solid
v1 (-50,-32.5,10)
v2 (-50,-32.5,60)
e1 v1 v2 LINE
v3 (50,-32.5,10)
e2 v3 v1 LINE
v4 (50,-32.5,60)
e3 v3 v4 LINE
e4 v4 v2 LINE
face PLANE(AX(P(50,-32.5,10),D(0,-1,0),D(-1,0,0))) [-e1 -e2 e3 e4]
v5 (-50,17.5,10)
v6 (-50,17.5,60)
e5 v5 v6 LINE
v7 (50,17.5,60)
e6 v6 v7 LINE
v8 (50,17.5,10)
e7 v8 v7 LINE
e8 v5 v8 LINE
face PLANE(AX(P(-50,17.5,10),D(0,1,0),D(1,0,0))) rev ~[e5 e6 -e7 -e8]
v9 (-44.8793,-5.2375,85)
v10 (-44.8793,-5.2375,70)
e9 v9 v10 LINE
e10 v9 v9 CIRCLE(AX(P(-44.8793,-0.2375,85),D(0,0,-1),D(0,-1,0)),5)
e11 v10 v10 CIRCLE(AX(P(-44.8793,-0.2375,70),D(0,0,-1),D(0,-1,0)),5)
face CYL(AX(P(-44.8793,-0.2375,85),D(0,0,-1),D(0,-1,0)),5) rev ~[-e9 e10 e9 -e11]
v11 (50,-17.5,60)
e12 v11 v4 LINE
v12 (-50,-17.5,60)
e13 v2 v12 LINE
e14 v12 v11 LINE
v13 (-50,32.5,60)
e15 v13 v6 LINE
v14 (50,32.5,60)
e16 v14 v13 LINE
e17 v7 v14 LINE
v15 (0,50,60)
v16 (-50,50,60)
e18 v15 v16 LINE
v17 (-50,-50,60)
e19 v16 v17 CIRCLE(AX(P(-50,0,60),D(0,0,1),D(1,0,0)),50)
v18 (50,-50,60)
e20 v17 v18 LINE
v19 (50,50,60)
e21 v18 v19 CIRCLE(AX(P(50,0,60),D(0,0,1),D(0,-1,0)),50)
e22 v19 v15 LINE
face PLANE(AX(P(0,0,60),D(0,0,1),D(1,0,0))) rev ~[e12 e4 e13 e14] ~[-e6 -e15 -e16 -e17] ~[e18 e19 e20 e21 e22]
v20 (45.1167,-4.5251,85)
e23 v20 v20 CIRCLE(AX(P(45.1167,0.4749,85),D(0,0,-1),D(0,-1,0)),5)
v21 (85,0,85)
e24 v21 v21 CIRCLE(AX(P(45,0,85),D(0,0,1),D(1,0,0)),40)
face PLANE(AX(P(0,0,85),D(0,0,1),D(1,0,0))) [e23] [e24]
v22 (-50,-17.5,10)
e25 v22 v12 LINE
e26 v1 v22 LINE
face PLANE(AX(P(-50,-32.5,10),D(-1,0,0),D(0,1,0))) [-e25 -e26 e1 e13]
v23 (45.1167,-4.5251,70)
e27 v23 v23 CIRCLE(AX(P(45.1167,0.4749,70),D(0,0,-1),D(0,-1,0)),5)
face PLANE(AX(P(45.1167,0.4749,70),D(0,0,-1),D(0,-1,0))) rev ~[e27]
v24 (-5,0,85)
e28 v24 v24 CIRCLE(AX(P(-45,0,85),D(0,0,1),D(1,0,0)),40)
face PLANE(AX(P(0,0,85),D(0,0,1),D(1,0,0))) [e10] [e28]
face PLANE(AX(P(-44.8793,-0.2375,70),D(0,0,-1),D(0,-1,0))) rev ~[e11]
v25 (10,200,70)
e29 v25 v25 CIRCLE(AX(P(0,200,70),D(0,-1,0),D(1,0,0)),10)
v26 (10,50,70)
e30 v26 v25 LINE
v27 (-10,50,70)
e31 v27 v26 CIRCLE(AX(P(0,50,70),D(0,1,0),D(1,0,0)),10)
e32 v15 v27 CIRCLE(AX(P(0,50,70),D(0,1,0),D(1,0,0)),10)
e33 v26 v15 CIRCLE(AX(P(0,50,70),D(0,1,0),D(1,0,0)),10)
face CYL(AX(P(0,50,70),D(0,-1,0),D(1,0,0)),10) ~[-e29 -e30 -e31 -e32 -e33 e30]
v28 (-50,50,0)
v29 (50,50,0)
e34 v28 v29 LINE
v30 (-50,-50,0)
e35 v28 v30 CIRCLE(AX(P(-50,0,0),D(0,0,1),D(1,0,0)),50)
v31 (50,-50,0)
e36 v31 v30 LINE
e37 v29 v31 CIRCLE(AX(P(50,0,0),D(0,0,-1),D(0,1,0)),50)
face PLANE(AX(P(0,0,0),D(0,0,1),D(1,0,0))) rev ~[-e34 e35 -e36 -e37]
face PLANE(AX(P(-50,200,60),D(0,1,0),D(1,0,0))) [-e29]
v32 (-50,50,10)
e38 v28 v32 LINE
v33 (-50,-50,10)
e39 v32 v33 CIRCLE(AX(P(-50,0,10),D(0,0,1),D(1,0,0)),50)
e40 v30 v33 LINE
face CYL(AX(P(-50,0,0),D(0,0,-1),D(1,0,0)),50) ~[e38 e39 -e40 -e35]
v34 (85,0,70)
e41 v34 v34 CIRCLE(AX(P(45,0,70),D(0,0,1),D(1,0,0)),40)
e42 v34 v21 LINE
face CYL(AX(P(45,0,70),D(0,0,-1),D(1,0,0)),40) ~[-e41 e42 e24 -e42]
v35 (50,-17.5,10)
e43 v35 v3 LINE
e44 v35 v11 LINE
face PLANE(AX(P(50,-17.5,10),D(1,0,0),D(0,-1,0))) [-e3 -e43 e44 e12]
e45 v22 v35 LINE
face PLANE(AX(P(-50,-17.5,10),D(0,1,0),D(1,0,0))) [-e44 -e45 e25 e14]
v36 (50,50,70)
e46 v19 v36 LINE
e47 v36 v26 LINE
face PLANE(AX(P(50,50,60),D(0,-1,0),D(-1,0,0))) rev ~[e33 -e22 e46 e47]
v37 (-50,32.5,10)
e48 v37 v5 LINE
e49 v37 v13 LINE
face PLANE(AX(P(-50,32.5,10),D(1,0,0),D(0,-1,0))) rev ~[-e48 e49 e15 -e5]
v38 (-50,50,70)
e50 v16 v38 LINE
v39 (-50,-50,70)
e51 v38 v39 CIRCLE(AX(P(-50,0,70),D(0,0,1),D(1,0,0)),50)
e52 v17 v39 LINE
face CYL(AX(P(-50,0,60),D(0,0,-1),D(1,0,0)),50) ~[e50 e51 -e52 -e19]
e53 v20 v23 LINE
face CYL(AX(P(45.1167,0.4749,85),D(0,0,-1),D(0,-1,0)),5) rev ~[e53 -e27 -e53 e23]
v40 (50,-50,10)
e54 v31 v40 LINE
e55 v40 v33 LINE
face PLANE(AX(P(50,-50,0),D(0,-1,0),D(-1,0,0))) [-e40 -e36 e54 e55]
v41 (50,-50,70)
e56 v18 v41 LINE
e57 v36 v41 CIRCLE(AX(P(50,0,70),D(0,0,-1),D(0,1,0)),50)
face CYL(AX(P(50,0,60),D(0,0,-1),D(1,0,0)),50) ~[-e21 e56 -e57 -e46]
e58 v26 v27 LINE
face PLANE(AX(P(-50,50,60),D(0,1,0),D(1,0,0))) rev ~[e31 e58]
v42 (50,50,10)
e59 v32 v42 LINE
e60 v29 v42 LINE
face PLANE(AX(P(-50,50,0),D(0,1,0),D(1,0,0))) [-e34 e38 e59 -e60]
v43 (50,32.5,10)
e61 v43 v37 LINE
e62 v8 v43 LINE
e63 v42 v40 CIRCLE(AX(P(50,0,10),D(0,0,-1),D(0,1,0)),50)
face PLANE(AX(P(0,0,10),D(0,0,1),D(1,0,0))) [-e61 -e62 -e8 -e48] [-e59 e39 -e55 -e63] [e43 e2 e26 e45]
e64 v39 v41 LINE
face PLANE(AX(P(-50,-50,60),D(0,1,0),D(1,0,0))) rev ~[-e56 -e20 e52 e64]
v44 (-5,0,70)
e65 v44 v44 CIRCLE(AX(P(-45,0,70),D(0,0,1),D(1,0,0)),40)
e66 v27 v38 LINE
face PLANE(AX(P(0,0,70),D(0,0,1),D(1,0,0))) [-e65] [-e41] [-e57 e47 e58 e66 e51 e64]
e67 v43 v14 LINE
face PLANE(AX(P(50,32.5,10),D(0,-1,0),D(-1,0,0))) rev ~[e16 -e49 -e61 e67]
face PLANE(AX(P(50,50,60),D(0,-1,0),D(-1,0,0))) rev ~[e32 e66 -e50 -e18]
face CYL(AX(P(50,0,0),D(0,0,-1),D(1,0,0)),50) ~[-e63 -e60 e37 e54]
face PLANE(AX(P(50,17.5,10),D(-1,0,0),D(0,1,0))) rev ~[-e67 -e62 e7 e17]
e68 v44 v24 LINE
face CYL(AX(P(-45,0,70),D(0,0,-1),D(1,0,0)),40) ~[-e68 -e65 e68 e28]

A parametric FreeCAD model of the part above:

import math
import FreeCAD as App
import Part
import Sketcher
from FreeCAD import Vector

doc = App.newDocument("Part")
params = doc.addObject("Spreadsheet::Sheet", "Params")
for row, (alias, value) in enumerate([
    ("sketch1_radius", "50 mm"),
    ("sketch1_width", "100 mm"),
    ("pad1_length", "10 mm"),
    ("sketch2_width", "100 mm"),
    ("sketch2_height", "15 mm"),
    ("pad2_length", "50 mm"),
    ("sketch3_radius", "50 mm"),
    ("sketch3_width", "100 mm"),
    ("pad3_length", "10 mm"),
    ("sketch4_diameter", "80 mm"),
    ("pad4_length", "15 mm"),
    ("sketch5_diameter", "10 mm"),
    ("hole_diameter", "10 mm"),
    ("hole_depth", "15 mm"),
    ("sketch6_diameter", "10 mm"),
    ("hole2_diameter", "10 mm"),
    ("hole2_depth", "15 mm"),
    ("sketch7_diameter", "20 mm"),
    ("pad5_length", "150 mm"),
], start=1):
    params.set(f"A{row}", alias)
    params.set(f"B{row}", "=" + value)
    params.setAlias(f"B{row}", alias)

body = doc.addObject("PartDesign::Body", "Body")

# Sketch on XY plane
sketch1 = body.newObject("Sketcher::SketchObject", "Sketch")
sketch1.AttachmentSupport = (doc.getObject("XY_Plane"), [""])
sketch1.MapMode = "FlatFace"
sketch1.addGeometry([
    Part.LineSegment(Vector(-50, -50, 0), Vector(50, -50, 0)),
    Part.ArcOfCircle(Part.Circle(Vector(50, 0, 0), Vector(0, 0, 1), 50), math.radians(-90), math.radians(90)),
    Part.LineSegment(Vector(50, 50, 0), Vector(-50, 50, 0)),
    Part.ArcOfCircle(Part.Circle(Vector(-50, 0, 0), Vector(0, 0, 1), 50), math.radians(90), math.radians(270)),
], False)
sketch1.addConstraint([
    Sketcher.Constraint("Tangent", 0, 2, 1, 1),
    Sketcher.Constraint("Tangent", 1, 2, 2, 1),
    Sketcher.Constraint("Tangent", 2, 2, 3, 1),
    Sketcher.Constraint("Tangent", 3, 2, 0, 1),
    Sketcher.Constraint("Horizontal", 0),
    Sketcher.Constraint("Horizontal", 2),
    Sketcher.Constraint("Symmetric", 1, 3, 3, 3, -1, 1),
    Sketcher.Constraint("Radius", 1, 50.0),
    Sketcher.Constraint("DistanceX", 0, 1, 0, 2, 100.0),
])
sketch1.setExpression("Constraints[7]", "Params.sketch1_radius")
sketch1.setExpression("Constraints[8]", "Params.sketch1_width")
pad1 = body.newObject("PartDesign::Pad", "Pad")
pad1.Profile = sketch1
pad1.setExpression("Length", "Params.pad1_length")

# Sketch on XY plane
sketch2 = body.newObject("Sketcher::SketchObject", "Sketch001")
sketch2.AttachmentSupport = (doc.getObject("XY_Plane"), [""])
sketch2.MapMode = "FlatFace"
sketch2.AttachmentOffset = App.Placement(Vector(0, 0, 10), App.Rotation())
sketch2.addGeometry([
    Part.LineSegment(Vector(50, 18, 0), Vector(50, 32, 0)),  # 0
    Part.LineSegment(Vector(50, 32, 0), Vector(-50, 32, 0)),  # 1
    Part.LineSegment(Vector(-50, 32, 0), Vector(-50, 18, 0)),  # 2
    Part.LineSegment(Vector(-50, 18, 0), Vector(50, 18, 0)),  # 3
    Part.LineSegment(Vector(-50, -32, 0), Vector(50, -32, 0)),  # 4
    Part.LineSegment(Vector(50, -32, 0), Vector(50, -18, 0)),  # 5
    Part.LineSegment(Vector(50, -18, 0), Vector(-50, -18, 0)),  # 6
    Part.LineSegment(Vector(-50, -18, 0), Vector(-50, -32, 0)),  # 7
], False)
sketch2.addConstraint([
    Sketcher.Constraint("Coincident", 0, 2, 1, 1),
    Sketcher.Constraint("Coincident", 1, 2, 2, 1),
    Sketcher.Constraint("Coincident", 2, 2, 3, 1),
    Sketcher.Constraint("Coincident", 3, 2, 0, 1),
    Sketcher.Constraint("Coincident", 4, 2, 5, 1),
    Sketcher.Constraint("Coincident", 5, 2, 6, 1),
    Sketcher.Constraint("Coincident", 6, 2, 7, 1),
    Sketcher.Constraint("Coincident", 7, 2, 4, 1),
    Sketcher.Constraint("Vertical", 0),
    Sketcher.Constraint("Horizontal", 1),
    Sketcher.Constraint("Vertical", 2),
    Sketcher.Constraint("Horizontal", 3),
    Sketcher.Constraint("Horizontal", 4),
    Sketcher.Constraint("Vertical", 5),
    Sketcher.Constraint("Horizontal", 6),
    Sketcher.Constraint("Vertical", 7),
    Sketcher.Constraint("Symmetric", 1, 2, 4, 2, -1, 1),
    Sketcher.Constraint("Symmetric", 3, 2, 6, 2, -1, 1),
    Sketcher.Constraint("Vertical", 3, 2, 4, 2),
    Sketcher.Constraint("DistanceX", 1, 2, 1, 1, 100.0),
    Sketcher.Constraint("DistanceY", 0, 1, 0, 2, 15.0),
    Sketcher.Constraint("DistanceY", 4, 2, 3, 2, 50.0),
])
sketch2.setExpression("Constraints[19]", "Params.sketch2_width")
sketch2.setExpression("Constraints[20]", "Params.sketch2_height")
pad2 = body.newObject("PartDesign::Pad", "Pad001")
pad2.Profile = sketch2
pad2.setExpression("Length", "Params.pad2_length")

# Sketch on XY plane
sketch3 = body.newObject("Sketcher::SketchObject", "Sketch002")
sketch3.AttachmentSupport = (doc.getObject("XY_Plane"), [""])
sketch3.MapMode = "FlatFace"
sketch3.AttachmentOffset = App.Placement(Vector(0, 0, 60), App.Rotation())
sketch3.addGeometry([
    Part.LineSegment(Vector(50, 50, 0), Vector(-50, 50, 0)),
    Part.ArcOfCircle(Part.Circle(Vector(-50, 0, 0), Vector(0, 0, 1), 50), math.radians(90), math.radians(270)),
    Part.LineSegment(Vector(-50, -50, 0), Vector(50, -50, 0)),
    Part.ArcOfCircle(Part.Circle(Vector(50, 0, 0), Vector(0, 0, 1), 50), math.radians(-90), math.radians(90)),
], False)
sketch3.addConstraint([
    Sketcher.Constraint("Tangent", 0, 2, 1, 1),
    Sketcher.Constraint("Tangent", 1, 2, 2, 1),
    Sketcher.Constraint("Tangent", 2, 2, 3, 1),
    Sketcher.Constraint("Tangent", 3, 2, 0, 1),
    Sketcher.Constraint("Horizontal", 0),
    Sketcher.Constraint("Horizontal", 2),
    Sketcher.Constraint("Symmetric", 1, 3, 3, 3, -1, 1),
    Sketcher.Constraint("Radius", 1, 50.0),
    Sketcher.Constraint("DistanceX", 0, 2, 0, 1, 100.0),
])
sketch3.setExpression("Constraints[7]", "Params.sketch3_radius")
sketch3.setExpression("Constraints[8]", "Params.sketch3_width")
pad3 = body.newObject("PartDesign::Pad", "Pad002")
pad3.Profile = sketch3
pad3.setExpression("Length", "Params.pad3_length")

# Sketch on XY plane
sketch4 = body.newObject("Sketcher::SketchObject", "Sketch003")
sketch4.AttachmentSupport = (doc.getObject("XY_Plane"), [""])
sketch4.MapMode = "FlatFace"
sketch4.AttachmentOffset = App.Placement(Vector(0, 0, 70), App.Rotation())
sketch4.addGeometry([
    Part.Circle(Vector(45, 0, 0), Vector(0, 0, 1), 40),
    Part.Circle(Vector(-45, 0, 0), Vector(0, 0, 1), 40),
], False)
sketch4.addConstraint([
    Sketcher.Constraint("Equal", 0, 1),
    Sketcher.Constraint("Symmetric", 0, 3, 1, 3, -1, 1),
    Sketcher.Constraint("PointOnObject", 0, 3, -1),
    Sketcher.Constraint("Diameter", 0, 80.0),
    Sketcher.Constraint("DistanceX", -1, 1, 0, 3, 45.0),
])
sketch4.setExpression("Constraints[3]", "Params.sketch4_diameter")
pad4 = body.newObject("PartDesign::Pad", "Pad003")
pad4.Profile = sketch4
pad4.setExpression("Length", "Params.pad4_length")

# Sketch on XY plane
sketch5 = body.newObject("Sketcher::SketchObject", "Sketch004")
sketch5.AttachmentSupport = (doc.getObject("XY_Plane"), [""])
sketch5.MapMode = "FlatFace"
sketch5.AttachmentOffset = App.Placement(Vector(0, 0, 85), App.Rotation())
sketch5.addGeometry(Part.Circle(Vector(-45, 0, 0), Vector(0, 0, 1), 5), False)
sketch5.addConstraint([
    Sketcher.Constraint("Diameter", 0, 10.0),
    Sketcher.Constraint("DistanceX", 0, 3, -1, 1, 44.8793),
    Sketcher.Constraint("DistanceY", 0, 3, -1, 1, 0.2375),
])
sketch5.setExpression("Constraints[0]", "Params.sketch5_diameter")
doc.recompute()
hole = body.newObject("PartDesign::Hole", "Hole")
hole.Profile = sketch5
hole.ThreadType = "None"
hole.setExpression("Diameter", "Params.hole_diameter")
hole.DepthType = "Dimension"
hole.setExpression("Depth", "Params.hole_depth")
hole.DrillPoint = "Flat"

# Sketch on XY plane
sketch6 = body.newObject("Sketcher::SketchObject", "Sketch005")
sketch6.AttachmentSupport = (doc.getObject("XY_Plane"), [""])
sketch6.MapMode = "FlatFace"
sketch6.AttachmentOffset = App.Placement(Vector(0, 0, 85), App.Rotation())
sketch6.addGeometry(Part.Circle(Vector(45, 0, 0), Vector(0, 0, 1), 5), False)
sketch6.addConstraint([
    Sketcher.Constraint("Diameter", 0, 10.0),
    Sketcher.Constraint("DistanceY", -1, 1, 0, 3, 0.475),
    Sketcher.Constraint("DistanceX", -1, 1, 0, 3, 45.1167),
])
sketch6.setExpression("Constraints[0]", "Params.sketch6_diameter")
doc.recompute()
hole2 = body.newObject("PartDesign::Hole", "Hole001")
hole2.Profile = sketch6
hole2.ThreadType = "None"
hole2.setExpression("Diameter", "Params.hole2_diameter")
hole2.DepthType = "Dimension"
hole2.setExpression("Depth", "Params.hole2_depth")
hole2.DrillPoint = "Flat"

# Sketch on XZ plane
sketch7 = body.newObject("Sketcher::SketchObject", "Sketch006")
sketch7.AttachmentSupport = (doc.getObject("XZ_Plane"), [""])
sketch7.MapMode = "FlatFace"
sketch7.AttachmentOffset = App.Placement(Vector(0, 0, -50), App.Rotation())
sketch7.addGeometry(Part.Circle(Vector(0, 70, 0), Vector(0, 0, 1), 10), False)
sketch7.addConstraint([
    Sketcher.Constraint("PointOnObject", 0, 3, -2),
    Sketcher.Constraint("Diameter", 0, 20.0),
    Sketcher.Constraint("DistanceY", -1, 1, 0, 3, 70.0),
])
sketch7.setExpression("Constraints[1]", "Params.sketch7_diameter")
pad5 = body.newObject("PartDesign::Pad", "Pad004")
pad5.Profile = sketch7
pad5.setExpression("Length", "Params.pad5_length")
pad5.Reversed = True

doc.recompute()
